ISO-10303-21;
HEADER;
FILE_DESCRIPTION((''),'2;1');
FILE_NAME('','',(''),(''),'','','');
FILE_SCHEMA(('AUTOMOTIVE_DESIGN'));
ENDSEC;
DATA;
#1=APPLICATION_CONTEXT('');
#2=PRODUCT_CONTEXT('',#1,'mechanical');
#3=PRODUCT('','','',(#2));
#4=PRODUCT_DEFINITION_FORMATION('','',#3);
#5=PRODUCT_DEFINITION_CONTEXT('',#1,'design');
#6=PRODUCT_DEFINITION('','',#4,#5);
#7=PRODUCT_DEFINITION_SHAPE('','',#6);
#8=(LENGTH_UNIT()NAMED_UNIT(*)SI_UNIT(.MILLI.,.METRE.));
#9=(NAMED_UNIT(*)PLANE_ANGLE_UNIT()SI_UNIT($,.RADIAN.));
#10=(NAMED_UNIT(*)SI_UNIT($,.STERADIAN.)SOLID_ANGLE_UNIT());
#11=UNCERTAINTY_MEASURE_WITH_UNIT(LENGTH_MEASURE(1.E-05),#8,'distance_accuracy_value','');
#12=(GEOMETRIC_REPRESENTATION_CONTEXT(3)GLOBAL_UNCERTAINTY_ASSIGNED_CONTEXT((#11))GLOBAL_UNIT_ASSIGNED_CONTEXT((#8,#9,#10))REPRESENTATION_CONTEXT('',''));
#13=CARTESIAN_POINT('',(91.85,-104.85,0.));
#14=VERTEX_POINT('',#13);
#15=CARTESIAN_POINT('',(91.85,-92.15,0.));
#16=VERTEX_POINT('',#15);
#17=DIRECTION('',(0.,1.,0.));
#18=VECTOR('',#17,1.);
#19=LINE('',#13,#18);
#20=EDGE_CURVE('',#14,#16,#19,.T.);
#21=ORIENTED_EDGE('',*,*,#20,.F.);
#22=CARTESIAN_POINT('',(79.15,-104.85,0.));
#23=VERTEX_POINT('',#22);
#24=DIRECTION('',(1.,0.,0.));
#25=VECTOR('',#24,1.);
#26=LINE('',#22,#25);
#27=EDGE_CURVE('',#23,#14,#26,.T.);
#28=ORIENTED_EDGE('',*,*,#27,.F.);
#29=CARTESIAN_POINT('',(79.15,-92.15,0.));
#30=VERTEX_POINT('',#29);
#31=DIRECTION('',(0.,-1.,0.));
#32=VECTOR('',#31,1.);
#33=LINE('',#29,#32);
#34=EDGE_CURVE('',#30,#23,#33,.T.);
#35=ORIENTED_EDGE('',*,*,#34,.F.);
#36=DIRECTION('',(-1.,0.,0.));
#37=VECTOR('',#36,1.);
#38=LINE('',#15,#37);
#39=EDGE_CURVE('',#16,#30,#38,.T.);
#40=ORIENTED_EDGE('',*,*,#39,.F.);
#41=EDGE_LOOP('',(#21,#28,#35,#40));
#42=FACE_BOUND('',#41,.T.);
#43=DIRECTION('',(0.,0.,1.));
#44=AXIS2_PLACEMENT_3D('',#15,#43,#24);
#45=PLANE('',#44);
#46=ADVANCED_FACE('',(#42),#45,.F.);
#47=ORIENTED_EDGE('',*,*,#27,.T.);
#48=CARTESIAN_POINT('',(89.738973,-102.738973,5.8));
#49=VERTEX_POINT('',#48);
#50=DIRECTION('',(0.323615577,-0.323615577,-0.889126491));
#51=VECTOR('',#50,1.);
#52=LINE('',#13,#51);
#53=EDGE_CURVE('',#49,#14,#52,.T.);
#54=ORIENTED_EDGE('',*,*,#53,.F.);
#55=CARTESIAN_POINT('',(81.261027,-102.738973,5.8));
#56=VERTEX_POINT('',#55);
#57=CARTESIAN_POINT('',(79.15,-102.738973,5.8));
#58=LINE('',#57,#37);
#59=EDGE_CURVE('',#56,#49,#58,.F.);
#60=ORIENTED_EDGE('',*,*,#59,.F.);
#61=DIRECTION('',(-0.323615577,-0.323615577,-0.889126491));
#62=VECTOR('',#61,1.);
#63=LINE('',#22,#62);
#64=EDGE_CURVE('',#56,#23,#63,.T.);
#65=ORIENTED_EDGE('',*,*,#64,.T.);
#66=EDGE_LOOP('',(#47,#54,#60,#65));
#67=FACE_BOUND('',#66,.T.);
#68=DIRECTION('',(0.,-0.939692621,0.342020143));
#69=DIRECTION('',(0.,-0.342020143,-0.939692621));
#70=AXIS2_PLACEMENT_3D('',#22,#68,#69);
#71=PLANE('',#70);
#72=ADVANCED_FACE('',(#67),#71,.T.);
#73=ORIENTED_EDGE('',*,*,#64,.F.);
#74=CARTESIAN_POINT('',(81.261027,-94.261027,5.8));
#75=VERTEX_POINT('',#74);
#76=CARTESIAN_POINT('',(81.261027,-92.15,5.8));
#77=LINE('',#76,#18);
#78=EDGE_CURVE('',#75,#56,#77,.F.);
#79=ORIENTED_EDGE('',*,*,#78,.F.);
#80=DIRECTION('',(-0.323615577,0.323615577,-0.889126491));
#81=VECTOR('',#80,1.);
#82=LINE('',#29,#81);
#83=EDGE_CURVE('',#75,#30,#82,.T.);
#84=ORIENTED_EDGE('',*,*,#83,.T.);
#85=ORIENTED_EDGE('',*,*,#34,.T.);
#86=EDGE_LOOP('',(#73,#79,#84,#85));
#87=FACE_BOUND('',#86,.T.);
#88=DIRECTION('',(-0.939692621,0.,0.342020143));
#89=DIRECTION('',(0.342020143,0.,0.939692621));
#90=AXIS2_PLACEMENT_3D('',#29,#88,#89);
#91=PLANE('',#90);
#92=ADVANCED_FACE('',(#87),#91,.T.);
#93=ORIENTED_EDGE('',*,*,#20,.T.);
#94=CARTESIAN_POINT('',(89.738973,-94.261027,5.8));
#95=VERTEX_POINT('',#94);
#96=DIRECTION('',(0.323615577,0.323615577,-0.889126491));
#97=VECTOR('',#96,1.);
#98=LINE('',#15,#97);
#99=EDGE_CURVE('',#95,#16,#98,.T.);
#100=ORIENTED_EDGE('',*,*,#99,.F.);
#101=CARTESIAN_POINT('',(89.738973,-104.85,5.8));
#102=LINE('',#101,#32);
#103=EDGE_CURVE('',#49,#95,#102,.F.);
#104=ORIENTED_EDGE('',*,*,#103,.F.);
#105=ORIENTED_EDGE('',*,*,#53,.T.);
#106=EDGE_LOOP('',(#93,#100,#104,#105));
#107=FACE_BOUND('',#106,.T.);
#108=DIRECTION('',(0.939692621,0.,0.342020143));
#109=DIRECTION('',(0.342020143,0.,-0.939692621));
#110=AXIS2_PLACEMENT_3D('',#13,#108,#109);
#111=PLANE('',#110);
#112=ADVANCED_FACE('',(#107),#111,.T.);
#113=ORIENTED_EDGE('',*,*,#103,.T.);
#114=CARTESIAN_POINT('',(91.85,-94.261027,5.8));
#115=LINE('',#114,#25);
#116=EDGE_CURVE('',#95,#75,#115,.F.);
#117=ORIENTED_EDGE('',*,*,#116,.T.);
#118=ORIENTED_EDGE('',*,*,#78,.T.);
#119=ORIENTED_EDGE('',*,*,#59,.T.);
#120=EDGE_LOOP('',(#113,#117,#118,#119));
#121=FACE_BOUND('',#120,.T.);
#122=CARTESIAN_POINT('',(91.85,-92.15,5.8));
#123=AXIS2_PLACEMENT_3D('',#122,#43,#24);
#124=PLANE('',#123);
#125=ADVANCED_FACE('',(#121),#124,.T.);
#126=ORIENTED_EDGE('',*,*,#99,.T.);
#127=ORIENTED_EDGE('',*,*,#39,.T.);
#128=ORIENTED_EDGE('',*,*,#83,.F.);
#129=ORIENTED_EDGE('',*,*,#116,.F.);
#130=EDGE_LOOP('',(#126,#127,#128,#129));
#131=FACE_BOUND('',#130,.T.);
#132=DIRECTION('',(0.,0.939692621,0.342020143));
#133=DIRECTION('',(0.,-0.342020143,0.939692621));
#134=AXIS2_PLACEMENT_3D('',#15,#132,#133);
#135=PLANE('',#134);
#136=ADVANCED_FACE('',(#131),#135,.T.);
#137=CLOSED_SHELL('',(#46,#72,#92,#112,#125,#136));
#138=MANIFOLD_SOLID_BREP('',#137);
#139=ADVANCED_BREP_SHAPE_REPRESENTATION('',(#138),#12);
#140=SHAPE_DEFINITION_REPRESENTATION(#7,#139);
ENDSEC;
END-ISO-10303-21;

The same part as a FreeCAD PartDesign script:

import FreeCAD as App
import Part
import Sketcher


def add_polygon(sketch, points):
    """Adds a closed chain of lines whose ends are joined by coincident constraints."""
    first, n = sketch.GeometryCount, len(points)
    for a, b in zip(points, points[1:] + points[:1]):
        sketch.addGeometry(Part.LineSegment(App.Vector(*a, 0), App.Vector(*b, 0)), False)
    for i in range(n):
        sketch.addConstraint(Sketcher.Constraint("Coincident", first + i, 2, first + (i + 1) % n, 1))

doc = App.newDocument("Part")
params = doc.addObject("Spreadsheet::Sheet", "Params")
for row, (alias, value) in enumerate([
    ("sketch1_width", "12.7 mm"),
    ("pad1_length", "5.8 mm"),
    ("pad1_taper", "-20 deg"),
], start=1):
    params.set(f"A{row}", alias)
    params.set(f"B{row}", "=" + value)
    params.setAlias(f"B{row}", alias)

body = doc.addObject("PartDesign::Body", "Body")

sketch1 = body.newObject("Sketcher::SketchObject", "Sketch")
sketch1.AttachmentSupport = (doc.getObject("XY_Plane"), [""])
sketch1.MapMode = "FlatFace"
add_polygon(sketch1, [(79, -92), (79, -105), (92, -105), (92, -92)])
sketch1.addConstraint([
    Sketcher.Constraint("Vertical", 0),
    Sketcher.Constraint("Horizontal", 1),
    Sketcher.Constraint("Vertical", 2),
    Sketcher.Constraint("Horizontal", 3),
    Sketcher.Constraint("Equal", 3, 0),
    Sketcher.Constraint("DistanceX", 1, 1, 1, 2, 12.7),
    Sketcher.Constraint("DistanceX", -1, 1, 0, 2, 79.15),
    Sketcher.Constraint("DistanceY", 0, 2, -1, 1, 104.85),
])
sketch1.setExpression("Constraints[9]", "Params.sketch1_width")
pad1 = body.newObject("PartDesign::Pad", "Pad")
pad1.Profile = sketch1
pad1.setExpression("Length", "Params.pad1_length")
pad1.setExpression("TaperAngle", "Params.pad1_taper")

doc.recompute()
